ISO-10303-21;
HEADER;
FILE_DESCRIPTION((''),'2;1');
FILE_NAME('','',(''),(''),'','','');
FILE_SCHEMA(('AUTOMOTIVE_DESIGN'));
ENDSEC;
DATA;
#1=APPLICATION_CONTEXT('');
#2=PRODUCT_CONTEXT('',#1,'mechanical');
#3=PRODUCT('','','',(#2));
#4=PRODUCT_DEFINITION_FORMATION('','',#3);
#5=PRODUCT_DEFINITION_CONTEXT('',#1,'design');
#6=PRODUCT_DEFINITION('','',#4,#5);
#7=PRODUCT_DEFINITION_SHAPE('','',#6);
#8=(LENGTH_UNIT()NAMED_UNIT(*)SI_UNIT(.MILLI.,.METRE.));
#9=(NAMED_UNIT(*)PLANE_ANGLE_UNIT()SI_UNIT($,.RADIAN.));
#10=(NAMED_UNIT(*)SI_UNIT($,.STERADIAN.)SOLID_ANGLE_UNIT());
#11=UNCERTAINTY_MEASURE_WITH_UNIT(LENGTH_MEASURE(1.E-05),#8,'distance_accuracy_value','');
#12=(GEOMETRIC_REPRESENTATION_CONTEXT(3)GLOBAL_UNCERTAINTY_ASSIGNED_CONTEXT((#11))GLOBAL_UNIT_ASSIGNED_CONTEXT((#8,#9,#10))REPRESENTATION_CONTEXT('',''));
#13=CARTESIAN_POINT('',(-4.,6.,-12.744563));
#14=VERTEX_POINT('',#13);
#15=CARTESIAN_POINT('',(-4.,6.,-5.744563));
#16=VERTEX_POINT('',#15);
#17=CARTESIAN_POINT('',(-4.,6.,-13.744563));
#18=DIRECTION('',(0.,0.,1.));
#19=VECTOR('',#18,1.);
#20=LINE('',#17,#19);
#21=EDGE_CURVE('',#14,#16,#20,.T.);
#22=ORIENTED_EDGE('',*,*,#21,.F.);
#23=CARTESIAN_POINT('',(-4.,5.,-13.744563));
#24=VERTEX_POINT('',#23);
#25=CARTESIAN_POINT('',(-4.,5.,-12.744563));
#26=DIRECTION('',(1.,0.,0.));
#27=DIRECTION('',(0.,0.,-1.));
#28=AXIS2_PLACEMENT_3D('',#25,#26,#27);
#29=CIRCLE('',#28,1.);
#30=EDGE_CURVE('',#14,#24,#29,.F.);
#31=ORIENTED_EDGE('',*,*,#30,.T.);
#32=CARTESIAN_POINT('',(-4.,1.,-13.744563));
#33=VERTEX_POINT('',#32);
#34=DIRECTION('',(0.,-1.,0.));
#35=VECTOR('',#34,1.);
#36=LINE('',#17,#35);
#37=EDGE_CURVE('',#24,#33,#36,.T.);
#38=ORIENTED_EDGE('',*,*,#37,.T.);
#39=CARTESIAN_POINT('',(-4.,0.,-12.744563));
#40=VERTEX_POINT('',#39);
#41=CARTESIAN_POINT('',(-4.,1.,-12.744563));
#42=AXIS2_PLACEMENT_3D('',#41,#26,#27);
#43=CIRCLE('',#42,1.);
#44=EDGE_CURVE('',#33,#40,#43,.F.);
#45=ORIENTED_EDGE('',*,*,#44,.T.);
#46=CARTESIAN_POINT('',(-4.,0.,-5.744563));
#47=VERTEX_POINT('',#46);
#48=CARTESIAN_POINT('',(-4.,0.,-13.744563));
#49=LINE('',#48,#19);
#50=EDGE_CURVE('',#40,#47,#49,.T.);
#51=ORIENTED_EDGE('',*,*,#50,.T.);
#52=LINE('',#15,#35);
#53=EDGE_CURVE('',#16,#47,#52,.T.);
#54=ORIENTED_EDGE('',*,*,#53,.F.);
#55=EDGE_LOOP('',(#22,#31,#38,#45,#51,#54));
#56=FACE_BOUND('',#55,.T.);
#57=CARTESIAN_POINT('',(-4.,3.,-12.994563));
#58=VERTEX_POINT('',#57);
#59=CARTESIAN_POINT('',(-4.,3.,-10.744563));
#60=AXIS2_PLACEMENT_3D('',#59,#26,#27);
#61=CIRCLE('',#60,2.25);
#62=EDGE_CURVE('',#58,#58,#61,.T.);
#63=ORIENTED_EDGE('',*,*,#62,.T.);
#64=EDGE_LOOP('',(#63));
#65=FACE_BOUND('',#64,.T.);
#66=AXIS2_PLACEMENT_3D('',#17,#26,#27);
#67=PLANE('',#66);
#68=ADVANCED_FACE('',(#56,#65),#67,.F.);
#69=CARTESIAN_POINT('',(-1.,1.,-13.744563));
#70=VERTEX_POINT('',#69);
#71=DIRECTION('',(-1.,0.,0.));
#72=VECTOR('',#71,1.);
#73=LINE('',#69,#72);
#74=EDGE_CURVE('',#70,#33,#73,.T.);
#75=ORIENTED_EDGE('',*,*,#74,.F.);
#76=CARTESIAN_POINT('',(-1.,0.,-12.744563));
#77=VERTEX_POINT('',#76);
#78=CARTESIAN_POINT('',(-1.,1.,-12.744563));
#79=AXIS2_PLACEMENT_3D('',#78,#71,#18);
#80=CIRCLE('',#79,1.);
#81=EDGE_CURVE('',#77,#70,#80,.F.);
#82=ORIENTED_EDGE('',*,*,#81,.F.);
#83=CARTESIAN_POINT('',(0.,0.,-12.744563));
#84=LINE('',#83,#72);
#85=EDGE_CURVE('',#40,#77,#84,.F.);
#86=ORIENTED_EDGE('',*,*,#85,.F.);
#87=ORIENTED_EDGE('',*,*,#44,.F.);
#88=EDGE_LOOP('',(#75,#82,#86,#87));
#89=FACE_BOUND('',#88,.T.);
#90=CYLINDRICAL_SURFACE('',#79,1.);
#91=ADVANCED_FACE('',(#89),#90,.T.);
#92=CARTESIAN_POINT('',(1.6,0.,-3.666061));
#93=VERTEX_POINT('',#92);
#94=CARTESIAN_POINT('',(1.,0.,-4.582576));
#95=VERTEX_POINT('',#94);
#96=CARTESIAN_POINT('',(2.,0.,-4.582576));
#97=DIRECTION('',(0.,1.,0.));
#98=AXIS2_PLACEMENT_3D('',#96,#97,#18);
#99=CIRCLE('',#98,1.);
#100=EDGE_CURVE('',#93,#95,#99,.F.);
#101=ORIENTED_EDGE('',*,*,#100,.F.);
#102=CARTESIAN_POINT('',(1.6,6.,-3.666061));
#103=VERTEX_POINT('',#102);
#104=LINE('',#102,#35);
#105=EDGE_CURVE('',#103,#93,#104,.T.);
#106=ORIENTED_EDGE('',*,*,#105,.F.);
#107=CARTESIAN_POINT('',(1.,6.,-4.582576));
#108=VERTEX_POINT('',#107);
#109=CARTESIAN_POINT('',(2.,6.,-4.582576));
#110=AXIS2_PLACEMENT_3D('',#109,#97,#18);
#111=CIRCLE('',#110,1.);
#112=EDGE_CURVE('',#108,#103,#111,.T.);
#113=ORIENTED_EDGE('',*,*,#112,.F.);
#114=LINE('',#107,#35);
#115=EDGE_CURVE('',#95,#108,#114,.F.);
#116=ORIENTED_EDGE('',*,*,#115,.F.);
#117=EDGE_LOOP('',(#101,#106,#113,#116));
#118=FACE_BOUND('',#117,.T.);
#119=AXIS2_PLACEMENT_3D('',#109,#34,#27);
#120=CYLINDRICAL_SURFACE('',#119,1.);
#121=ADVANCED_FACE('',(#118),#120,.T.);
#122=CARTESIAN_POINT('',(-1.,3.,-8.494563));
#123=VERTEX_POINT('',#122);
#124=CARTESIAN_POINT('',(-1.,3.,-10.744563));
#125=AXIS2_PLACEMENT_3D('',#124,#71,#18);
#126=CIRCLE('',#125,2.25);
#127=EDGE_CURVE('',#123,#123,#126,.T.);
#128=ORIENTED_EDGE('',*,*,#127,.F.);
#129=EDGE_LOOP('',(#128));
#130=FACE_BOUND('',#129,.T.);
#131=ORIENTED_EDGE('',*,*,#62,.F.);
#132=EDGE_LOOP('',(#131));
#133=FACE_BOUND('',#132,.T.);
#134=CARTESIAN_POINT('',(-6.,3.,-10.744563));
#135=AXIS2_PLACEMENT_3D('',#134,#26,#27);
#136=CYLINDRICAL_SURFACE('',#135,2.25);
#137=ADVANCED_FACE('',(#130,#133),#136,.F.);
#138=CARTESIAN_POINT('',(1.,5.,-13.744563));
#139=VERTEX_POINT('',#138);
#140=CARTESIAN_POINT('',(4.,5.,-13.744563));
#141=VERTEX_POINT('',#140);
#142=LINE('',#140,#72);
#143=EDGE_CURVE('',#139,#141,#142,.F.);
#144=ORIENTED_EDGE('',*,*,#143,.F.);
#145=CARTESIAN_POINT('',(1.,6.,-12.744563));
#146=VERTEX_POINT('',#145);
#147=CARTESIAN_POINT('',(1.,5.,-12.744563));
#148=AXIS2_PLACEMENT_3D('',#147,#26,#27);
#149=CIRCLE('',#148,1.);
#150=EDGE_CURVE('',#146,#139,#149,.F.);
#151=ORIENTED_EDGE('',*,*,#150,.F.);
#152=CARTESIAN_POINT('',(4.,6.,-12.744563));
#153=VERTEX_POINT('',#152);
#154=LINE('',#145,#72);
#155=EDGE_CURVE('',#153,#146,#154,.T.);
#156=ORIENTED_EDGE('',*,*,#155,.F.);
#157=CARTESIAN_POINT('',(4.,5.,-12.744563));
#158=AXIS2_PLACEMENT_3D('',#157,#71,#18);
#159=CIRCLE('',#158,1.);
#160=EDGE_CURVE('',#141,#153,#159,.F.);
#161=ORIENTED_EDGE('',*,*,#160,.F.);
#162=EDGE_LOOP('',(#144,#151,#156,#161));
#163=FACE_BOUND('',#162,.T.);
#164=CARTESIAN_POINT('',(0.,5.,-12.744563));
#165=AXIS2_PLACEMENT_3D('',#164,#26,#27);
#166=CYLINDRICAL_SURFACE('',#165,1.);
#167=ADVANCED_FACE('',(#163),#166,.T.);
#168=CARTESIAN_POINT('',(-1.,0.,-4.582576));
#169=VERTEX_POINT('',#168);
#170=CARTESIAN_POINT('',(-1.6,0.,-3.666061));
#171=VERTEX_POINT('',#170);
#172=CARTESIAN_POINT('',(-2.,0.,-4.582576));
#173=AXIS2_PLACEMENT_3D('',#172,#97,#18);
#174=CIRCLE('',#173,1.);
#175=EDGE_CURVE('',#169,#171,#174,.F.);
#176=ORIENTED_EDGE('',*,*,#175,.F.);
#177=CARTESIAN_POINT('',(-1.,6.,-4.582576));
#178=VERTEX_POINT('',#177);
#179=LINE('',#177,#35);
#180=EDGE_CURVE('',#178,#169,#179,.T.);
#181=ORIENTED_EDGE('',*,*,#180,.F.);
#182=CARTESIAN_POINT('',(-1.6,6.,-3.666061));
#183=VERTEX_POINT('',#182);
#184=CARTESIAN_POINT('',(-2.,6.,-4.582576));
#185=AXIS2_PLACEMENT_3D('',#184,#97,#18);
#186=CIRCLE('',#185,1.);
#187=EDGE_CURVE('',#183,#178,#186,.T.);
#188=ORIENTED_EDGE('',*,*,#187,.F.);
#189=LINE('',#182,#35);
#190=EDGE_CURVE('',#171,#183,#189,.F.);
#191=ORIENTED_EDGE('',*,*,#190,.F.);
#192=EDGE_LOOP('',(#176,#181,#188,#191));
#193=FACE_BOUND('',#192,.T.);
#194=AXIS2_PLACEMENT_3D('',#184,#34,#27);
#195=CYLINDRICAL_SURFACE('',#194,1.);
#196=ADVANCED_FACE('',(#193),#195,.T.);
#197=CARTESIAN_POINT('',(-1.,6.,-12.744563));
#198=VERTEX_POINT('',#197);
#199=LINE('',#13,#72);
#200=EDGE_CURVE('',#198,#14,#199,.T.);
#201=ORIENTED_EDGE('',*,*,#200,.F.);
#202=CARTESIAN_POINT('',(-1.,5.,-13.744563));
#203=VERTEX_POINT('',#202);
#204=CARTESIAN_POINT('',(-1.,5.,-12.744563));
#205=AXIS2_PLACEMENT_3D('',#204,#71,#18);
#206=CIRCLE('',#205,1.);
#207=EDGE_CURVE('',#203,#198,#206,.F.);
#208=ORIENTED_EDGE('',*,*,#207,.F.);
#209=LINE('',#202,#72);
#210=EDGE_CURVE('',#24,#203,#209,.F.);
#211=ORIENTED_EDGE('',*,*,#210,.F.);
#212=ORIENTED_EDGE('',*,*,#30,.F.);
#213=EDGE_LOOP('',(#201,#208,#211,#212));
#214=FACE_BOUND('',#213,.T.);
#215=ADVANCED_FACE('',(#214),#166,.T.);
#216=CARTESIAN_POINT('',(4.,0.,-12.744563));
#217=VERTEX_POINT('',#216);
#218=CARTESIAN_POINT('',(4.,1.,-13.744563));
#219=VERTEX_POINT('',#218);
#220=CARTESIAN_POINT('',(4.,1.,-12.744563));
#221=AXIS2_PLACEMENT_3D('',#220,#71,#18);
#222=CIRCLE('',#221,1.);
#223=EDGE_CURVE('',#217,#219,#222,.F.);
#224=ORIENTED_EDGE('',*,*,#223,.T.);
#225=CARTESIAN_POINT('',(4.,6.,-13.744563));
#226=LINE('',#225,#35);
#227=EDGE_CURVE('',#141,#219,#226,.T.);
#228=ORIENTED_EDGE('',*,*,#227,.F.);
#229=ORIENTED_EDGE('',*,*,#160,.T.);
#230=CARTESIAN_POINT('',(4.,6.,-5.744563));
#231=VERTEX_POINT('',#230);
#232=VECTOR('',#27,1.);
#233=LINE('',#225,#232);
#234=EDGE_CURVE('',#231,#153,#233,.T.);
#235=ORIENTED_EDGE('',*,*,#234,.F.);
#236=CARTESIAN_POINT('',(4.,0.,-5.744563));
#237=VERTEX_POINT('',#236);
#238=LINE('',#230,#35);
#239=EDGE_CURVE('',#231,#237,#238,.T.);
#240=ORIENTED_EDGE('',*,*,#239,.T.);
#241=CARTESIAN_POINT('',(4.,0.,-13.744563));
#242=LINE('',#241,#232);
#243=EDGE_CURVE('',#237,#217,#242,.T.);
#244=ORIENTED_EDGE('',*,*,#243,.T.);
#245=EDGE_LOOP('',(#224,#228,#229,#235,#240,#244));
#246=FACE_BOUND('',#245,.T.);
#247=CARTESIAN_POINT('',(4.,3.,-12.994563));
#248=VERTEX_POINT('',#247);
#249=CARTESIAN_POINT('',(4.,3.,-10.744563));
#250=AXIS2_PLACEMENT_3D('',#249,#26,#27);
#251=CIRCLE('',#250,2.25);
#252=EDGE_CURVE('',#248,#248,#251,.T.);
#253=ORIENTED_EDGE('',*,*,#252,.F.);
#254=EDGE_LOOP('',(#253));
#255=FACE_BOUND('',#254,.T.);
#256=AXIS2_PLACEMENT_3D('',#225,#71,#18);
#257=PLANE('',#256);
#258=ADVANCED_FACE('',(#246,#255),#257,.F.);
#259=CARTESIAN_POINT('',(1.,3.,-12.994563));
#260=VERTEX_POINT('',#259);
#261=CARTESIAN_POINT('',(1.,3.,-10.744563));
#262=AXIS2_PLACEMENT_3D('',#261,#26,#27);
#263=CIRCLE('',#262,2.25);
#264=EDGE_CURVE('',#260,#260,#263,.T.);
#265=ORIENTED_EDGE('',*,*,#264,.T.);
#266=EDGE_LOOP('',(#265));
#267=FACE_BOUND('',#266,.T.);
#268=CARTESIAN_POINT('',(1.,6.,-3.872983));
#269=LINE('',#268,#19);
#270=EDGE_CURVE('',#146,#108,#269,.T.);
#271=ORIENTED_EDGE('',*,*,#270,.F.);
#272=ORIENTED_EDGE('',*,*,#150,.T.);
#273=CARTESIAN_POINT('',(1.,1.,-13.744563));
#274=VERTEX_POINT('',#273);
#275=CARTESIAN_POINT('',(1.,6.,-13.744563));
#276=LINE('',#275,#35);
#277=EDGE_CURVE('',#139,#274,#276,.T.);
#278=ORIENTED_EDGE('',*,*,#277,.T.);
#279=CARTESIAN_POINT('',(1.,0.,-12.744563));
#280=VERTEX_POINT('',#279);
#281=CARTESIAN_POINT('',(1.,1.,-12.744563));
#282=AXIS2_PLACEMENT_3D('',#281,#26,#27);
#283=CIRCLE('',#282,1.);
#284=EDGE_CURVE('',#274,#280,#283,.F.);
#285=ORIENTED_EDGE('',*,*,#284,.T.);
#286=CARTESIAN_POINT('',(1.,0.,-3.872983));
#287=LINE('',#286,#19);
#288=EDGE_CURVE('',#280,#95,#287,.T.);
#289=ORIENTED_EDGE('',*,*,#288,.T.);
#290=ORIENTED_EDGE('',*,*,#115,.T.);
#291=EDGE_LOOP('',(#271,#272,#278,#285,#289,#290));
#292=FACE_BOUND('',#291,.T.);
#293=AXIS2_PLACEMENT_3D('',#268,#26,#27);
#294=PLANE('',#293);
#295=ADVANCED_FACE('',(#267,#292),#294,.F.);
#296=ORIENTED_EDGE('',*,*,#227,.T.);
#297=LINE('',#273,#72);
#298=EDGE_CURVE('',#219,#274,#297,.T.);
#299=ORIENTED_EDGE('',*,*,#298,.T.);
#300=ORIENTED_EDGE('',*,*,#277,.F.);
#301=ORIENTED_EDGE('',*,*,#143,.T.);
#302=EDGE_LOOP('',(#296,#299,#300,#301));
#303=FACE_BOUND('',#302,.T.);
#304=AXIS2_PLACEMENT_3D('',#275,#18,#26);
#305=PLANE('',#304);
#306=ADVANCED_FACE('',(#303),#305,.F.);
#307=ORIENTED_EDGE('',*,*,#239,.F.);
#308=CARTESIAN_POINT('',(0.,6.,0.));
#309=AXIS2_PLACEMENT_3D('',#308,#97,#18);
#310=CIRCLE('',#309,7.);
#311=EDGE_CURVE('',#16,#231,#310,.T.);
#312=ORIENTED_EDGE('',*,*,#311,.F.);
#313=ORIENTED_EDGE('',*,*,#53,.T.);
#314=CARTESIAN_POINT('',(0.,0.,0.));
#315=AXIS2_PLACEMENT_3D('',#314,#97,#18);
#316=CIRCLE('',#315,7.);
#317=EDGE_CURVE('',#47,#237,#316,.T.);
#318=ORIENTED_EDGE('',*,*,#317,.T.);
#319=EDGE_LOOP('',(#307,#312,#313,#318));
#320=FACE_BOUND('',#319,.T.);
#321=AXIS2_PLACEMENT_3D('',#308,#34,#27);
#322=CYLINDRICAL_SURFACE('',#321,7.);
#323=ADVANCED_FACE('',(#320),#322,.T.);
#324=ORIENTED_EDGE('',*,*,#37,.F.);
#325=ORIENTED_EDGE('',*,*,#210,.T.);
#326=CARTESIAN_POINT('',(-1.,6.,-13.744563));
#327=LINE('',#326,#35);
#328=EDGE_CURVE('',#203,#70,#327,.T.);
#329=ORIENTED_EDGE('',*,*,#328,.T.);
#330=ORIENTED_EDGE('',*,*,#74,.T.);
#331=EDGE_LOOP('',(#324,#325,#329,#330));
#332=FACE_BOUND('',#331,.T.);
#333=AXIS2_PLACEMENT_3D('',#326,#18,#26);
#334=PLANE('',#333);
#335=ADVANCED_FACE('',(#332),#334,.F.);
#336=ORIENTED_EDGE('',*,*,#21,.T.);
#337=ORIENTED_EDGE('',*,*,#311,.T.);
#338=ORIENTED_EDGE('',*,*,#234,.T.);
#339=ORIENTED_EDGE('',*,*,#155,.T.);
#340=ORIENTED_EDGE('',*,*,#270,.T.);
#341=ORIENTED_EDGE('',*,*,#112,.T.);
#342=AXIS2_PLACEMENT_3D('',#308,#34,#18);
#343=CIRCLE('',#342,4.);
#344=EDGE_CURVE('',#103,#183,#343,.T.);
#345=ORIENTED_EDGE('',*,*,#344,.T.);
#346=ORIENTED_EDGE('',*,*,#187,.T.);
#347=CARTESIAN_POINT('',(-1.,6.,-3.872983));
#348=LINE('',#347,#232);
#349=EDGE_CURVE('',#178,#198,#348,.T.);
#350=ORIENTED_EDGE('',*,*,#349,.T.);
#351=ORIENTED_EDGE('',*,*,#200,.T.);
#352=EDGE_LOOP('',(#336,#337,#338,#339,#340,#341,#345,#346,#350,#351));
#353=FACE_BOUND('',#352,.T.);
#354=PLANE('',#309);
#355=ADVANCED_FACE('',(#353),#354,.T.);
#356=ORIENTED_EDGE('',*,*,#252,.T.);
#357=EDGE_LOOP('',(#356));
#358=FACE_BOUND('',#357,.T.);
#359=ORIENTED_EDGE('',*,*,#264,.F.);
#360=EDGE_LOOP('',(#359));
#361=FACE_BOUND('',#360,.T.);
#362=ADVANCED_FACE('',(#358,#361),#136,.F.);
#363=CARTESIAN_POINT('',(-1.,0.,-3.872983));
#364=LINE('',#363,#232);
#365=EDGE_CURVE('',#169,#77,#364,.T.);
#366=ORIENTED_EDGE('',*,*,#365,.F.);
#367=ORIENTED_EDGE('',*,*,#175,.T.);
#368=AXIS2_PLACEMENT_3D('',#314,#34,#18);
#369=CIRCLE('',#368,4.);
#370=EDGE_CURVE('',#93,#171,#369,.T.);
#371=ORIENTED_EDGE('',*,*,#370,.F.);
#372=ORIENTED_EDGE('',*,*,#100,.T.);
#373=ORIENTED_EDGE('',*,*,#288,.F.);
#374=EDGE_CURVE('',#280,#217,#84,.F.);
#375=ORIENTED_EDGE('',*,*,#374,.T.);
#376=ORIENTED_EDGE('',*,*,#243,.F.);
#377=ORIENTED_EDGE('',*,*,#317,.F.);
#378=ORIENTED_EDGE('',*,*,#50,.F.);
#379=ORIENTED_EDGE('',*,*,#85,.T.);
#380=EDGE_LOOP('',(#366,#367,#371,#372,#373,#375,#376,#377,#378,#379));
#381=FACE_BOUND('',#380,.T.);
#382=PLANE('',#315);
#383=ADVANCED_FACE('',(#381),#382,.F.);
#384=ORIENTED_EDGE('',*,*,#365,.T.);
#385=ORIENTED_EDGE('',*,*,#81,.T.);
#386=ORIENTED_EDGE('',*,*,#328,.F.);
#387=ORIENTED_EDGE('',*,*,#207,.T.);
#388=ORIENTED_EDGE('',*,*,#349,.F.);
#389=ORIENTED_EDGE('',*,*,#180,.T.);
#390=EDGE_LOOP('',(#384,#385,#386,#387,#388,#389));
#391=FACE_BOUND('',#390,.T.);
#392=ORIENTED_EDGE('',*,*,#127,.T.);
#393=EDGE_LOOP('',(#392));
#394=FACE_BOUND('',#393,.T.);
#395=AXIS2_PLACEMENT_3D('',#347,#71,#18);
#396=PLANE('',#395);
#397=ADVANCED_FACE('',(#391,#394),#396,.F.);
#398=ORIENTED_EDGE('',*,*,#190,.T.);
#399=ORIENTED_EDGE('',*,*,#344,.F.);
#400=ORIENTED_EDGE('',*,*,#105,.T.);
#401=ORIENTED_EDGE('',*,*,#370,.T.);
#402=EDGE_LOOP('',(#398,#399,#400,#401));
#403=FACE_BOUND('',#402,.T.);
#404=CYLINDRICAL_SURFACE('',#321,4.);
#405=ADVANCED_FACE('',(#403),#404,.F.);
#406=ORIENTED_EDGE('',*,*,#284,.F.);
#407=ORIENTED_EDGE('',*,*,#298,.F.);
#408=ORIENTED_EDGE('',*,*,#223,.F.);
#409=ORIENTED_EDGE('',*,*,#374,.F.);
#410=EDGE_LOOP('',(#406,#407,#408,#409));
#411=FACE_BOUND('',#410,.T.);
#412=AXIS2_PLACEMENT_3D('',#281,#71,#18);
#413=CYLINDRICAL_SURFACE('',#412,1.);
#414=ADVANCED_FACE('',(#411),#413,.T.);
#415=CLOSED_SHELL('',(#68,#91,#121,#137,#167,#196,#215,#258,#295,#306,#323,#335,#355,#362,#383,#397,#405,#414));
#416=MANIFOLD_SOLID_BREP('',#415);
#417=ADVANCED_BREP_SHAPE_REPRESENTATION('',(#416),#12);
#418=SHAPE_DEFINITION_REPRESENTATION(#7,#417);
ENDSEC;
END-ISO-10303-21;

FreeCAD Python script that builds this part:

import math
import FreeCAD as App
import Part
import Sketcher


def edges_at(feature, points):
    """Names of the edges that pass closest to the given points."""
    edges = feature.Shape.Edges
    near = lambda p: min(range(len(edges)), key=lambda i: edges[i].distToShape(Part.Vertex(*p))[0])
    return sorted({f"Edge{near(p) + 1}" for p in points})

doc = App.newDocument("Part")
body = doc.addObject("PartDesign::Body", "Body")

sketch1 = body.newObject("Sketcher::SketchObject", "Sketch")
sketch1.AttachmentSupport = (doc.getObject("XZ_Plane"), [""])
sketch1.MapMode = "FlatFace"
sketch1.addGeometry(Part.LineSegment(App.Vector(-1, -3.9, 0), App.Vector(-1, -13.7, 0)), False)
sketch1.addGeometry(Part.LineSegment(App.Vector(-1, -13.7, 0), App.Vector(-4, -13.7, 0)), False)
sketch1.addGeometry(Part.LineSegment(App.Vector(-4, -13.7, 0), App.Vector(-4, -5.7, 0)), False)
sketch1.addGeometry(Part.ArcOfCircle(Part.Circle(App.Vector(0, 0, 0), App.Vector(0, 0, 1), 7), math.radians(-55), math.radians(235)), False)
sketch1.addGeometry(Part.LineSegment(App.Vector(4, -5.7, 0), App.Vector(4, -13.7, 0)), False)
sketch1.addGeometry(Part.LineSegment(App.Vector(4, -13.7, 0), App.Vector(1, -13.7, 0)), False)
sketch1.addGeometry(Part.LineSegment(App.Vector(1, -13.7, 0), App.Vector(1, -3.9, 0)), False)
sketch1.addGeometry(Part.ArcOfCircle(Part.Circle(App.Vector(0, 0, 0), App.Vector(0, 0, 1), 4), math.radians(-76), math.radians(256)), False)
sketch1.addConstraint(Sketcher.Constraint("Coincident", 0, 2, 1, 1))
sketch1.addConstraint(Sketcher.Constraint("Coincident", 1, 2, 2, 1))
sketch1.addConstraint(Sketcher.Constraint("Coincident", 2, 2, 3, 2))
sketch1.addConstraint(Sketcher.Constraint("Coincident", 3, 1, 4, 1))
sketch1.addConstraint(Sketcher.Constraint("Coincident", 4, 2, 5, 1))
sketch1.addConstraint(Sketcher.Constraint("Coincident", 5, 2, 6, 1))
sketch1.addConstraint(Sketcher.Constraint("Coincident", 6, 2, 7, 1))
sketch1.addConstraint(Sketcher.Constraint("Coincident", 7, 2, 0, 1))
sketch1.addConstraint(Sketcher.Constraint("Vertical", 0))
sketch1.addConstraint(Sketcher.Constraint("Horizontal", 1))
sketch1.addConstraint(Sketcher.Constraint("Vertical", 2))
sketch1.addConstraint(Sketcher.Constraint("Vertical", 4))
sketch1.addConstraint(Sketcher.Constraint("Horizontal", 5))
sketch1.addConstraint(Sketcher.Constraint("Vertical", 6))
sketch1.addConstraint(Sketcher.Constraint("Coincident", 3, 3, -1, 1))
sketch1.addConstraint(Sketcher.Constraint("Coincident", 7, 3, -1, 1))
sketch1.addConstraint(Sketcher.Constraint("Symmetric", 1, 2, 4, 2, -2))
sketch1.addConstraint(Sketcher.Constraint("Horizontal", 6, 2, 7, 2))
sketch1.addConstraint(Sketcher.Constraint("Radius", 3, 7.0))
sketch1.addConstraint(Sketcher.Constraint("Radius", 7, 4.0))
sketch1.addConstraint(Sketcher.Constraint("DistanceX", 1, 2, 1, 1, 3.0))
sketch1.addConstraint(Sketcher.Constraint("DistanceY", 2, 1, 2, 2, 8.0))
sketch1.addConstraint(Sketcher.Constraint("DistanceX", 0, 2, -1, 1, 1.0))
pad1 = body.newObject("PartDesign::Pad", "Pad")
pad1.Profile = sketch1
pad1.Length = 6
pad1.Reversed = True

sketch2 = body.newObject("Sketcher::SketchObject", "Sketch001")
sketch2.AttachmentSupport = (doc.getObject("YZ_Plane"), [""])
sketch2.MapMode = "FlatFace"
sketch2.AttachmentOffset = App.Placement(App.Vector(0, 0, 4), App.Rotation())
sketch2.addGeometry(Part.Circle(App.Vector(3, -10.7, 0), App.Vector(0, 0, 1), 2.2), False)
sketch2.addConstraint(Sketcher.Constraint("Diameter", 0, 4.5))
sketch2.addConstraint(Sketcher.Constraint("DistanceX", -1, 1, 0, 3, 3.0))
sketch2.addConstraint(Sketcher.Constraint("DistanceY", 0, 3, -1, 1, 10.744563))
pocket1 = body.newObject("PartDesign::Pocket", "Pocket")
pocket1.Profile = sketch2
pocket1.Length = 10
doc.recompute()

fillet = body.newObject("PartDesign::Fillet", "Fillet")
fillet.Base = (pocket1, edges_at(pocket1, [
    (-2.5, 0, -13.745),
    (-2.5, 6, -13.745),
    (1, 3, -3.873),
    (-1, 3, -3.873),
    (2.5, 6, -13.745),
    (2.5, 0, -13.745),
]))
fillet.Radius = 1

doc.recompute()
